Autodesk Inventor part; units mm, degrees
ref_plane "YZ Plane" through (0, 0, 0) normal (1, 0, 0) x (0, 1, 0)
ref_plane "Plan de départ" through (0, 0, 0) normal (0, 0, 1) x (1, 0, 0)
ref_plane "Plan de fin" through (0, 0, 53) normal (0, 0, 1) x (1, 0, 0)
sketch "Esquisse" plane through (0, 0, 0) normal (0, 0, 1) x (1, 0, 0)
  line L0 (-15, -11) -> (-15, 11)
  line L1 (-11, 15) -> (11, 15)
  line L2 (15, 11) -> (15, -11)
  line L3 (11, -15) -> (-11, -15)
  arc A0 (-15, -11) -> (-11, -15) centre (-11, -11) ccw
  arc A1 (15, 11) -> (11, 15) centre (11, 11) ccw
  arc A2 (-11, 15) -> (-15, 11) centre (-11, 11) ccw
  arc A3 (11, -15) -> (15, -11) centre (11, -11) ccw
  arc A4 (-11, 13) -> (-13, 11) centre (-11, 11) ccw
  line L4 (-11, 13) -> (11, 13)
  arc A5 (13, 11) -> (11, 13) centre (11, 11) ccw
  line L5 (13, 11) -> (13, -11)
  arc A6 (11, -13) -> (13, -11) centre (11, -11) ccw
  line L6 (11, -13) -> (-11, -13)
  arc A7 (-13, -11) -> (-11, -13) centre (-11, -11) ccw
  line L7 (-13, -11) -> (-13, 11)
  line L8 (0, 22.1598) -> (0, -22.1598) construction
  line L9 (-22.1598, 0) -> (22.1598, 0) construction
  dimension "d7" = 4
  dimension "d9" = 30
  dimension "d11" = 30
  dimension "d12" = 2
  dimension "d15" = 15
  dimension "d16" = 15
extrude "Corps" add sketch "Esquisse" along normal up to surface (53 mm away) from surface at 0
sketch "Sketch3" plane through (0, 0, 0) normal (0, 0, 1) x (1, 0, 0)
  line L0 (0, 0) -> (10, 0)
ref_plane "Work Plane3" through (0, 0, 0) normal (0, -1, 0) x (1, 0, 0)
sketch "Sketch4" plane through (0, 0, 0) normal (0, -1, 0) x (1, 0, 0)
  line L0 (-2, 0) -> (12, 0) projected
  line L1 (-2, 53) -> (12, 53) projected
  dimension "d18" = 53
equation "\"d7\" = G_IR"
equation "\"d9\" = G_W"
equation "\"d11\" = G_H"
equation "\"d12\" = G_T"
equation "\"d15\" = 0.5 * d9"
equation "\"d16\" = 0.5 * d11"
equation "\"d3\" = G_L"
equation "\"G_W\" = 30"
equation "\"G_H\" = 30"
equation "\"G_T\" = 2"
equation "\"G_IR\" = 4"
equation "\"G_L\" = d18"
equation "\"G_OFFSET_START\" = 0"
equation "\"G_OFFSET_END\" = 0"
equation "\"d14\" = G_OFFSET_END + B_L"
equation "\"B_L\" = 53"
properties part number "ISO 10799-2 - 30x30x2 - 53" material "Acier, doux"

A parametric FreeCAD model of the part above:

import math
import FreeCAD as App
import Part
import Sketcher

doc = App.newDocument("Part")
params = doc.addObject("Spreadsheet::Sheet", "Params")
for row, (alias, value) in enumerate([
    ("sketch1_radius", "4 mm"),
    ("sketch1_radius2", "2 mm"),
    ("pad1_length", "53 mm"),
], start=1):
    params.set(f"A{row}", alias)
    params.set(f"B{row}", "=" + value)
    params.setAlias(f"B{row}", alias)

body = doc.addObject("PartDesign::Body", "Body")

# Sketch on XY plane
sketch1 = doc.addObject("Sketcher::SketchObject", "Sketch")
body.addObject(sketch1)
sketch1.AttachmentSupport = (doc.XY_Plane, [""])
sketch1.MapMode = "FlatFace"
sketch1.addGeometry([
    Part.LineSegment(App.Vector(-15, 11, 0), App.Vector(-15, -11, 0)),  # 0
    Part.ArcOfCircle(Part.Circle(App.Vector(-11, -11, 0), App.Vector(0, 0, 1), 4), math.radians(180), math.radians(270)),  # 1
    Part.LineSegment(App.Vector(-11, -15, 0), App.Vector(11, -15, 0)),  # 2
    Part.ArcOfCircle(Part.Circle(App.Vector(11, -11, 0), App.Vector(0, 0, 1), 4), math.radians(-90), math.radians(0)),  # 3
    Part.LineSegment(App.Vector(15, -11, 0), App.Vector(15, 11, 0)),  # 4
    Part.ArcOfCircle(Part.Circle(App.Vector(11, 11, 0), App.Vector(0, 0, 1), 4), math.radians(0), math.radians(90)),  # 5
    Part.LineSegment(App.Vector(11, 15, 0), App.Vector(-11, 15, 0)),  # 6
    Part.ArcOfCircle(Part.Circle(App.Vector(-11, 11, 0), App.Vector(0, 0, 1), 4), math.radians(90), math.radians(180)),  # 7
    Part.ArcOfCircle(Part.Circle(App.Vector(-11, 11, 0), App.Vector(0, 0, 1), 2), math.radians(90), math.radians(180)),  # 8
    Part.LineSegment(App.Vector(-11, 13, 0), App.Vector(11, 13, 0)),  # 9
    Part.ArcOfCircle(Part.Circle(App.Vector(11, 11, 0), App.Vector(0, 0, 1), 2), math.radians(0), math.radians(90)),  # 10
    Part.LineSegment(App.Vector(13, 11, 0), App.Vector(13, -11, 0)),  # 11
    Part.ArcOfCircle(Part.Circle(App.Vector(11, -11, 0), App.Vector(0, 0, 1), 2), math.radians(-90), math.radians(0)),  # 12
    Part.LineSegment(App.Vector(11, -13, 0), App.Vector(-11, -13, 0)),  # 13
    Part.ArcOfCircle(Part.Circle(App.Vector(-11, -11, 0), App.Vector(0, 0, 1), 2), math.radians(180), math.radians(270)),  # 14
    Part.LineSegment(App.Vector(-13, -11, 0), App.Vector(-13, 11, 0)),  # 15
], False)
sketch1.addConstraint([
    Sketcher.Constraint("Tangent", 0, 2, 1, 1),
    Sketcher.Constraint("Tangent", 1, 2, 2, 1),
    Sketcher.Constraint("Tangent", 2, 2, 3, 1),
    Sketcher.Constraint("Tangent", 3, 2, 4, 1),
    Sketcher.Constraint("Tangent", 4, 2, 5, 1),
    Sketcher.Constraint("Tangent", 5, 2, 6, 1),
    Sketcher.Constraint("Tangent", 6, 2, 7, 1),
    Sketcher.Constraint("Tangent", 7, 2, 0, 1),
    Sketcher.Constraint("Tangent", 8, 1, 9, 1),
    Sketcher.Constraint("Tangent", 9, 2, 10, 2),
    Sketcher.Constraint("Tangent", 10, 1, 11, 1),
    Sketcher.Constraint("Tangent", 11, 2, 12, 2),
    Sketcher.Constraint("Tangent", 12, 1, 13, 1),
    Sketcher.Constraint("Tangent", 13, 2, 14, 2),
    Sketcher.Constraint("Tangent", 14, 1, 15, 1),
    Sketcher.Constraint("Tangent", 15, 2, 8, 2),
    Sketcher.Constraint("Vertical", 0),
    Sketcher.Constraint("Horizontal", 2),
    Sketcher.Constraint("Vertical", 4),
    Sketcher.Constraint("Horizontal", 6),
    Sketcher.Constraint("Horizontal", 9),
    Sketcher.Constraint("Vertical", 11),
    Sketcher.Constraint("Horizontal", 13),
    Sketcher.Constraint("Vertical", 15),
    Sketcher.Constraint("Coincident", 8, 3, 7, 3),
    Sketcher.Constraint("Coincident", 10, 3, 5, 3),
    Sketcher.Constraint("Coincident", 12, 3, 3, 3),
    Sketcher.Constraint("Equal", 1, 3),
    Sketcher.Constraint("Equal", 3, 5),
    Sketcher.Constraint("Equal", 5, 7),
    Sketcher.Constraint("Equal", 12, 14),
    Sketcher.Constraint("Symmetric", 1, 3, 5, 3, -1, 1),
    Sketcher.Constraint("Equal", 13, 0),
    Sketcher.Constraint("Radius", 1, 4.0),
    Sketcher.Constraint("Radius", 8, 2.0),
    Sketcher.Constraint("DistanceX", 0, 2, -1, 1, 15.0),
])
sketch1.setExpression("Constraints[33]", "Params.sketch1_radius")
sketch1.setExpression("Constraints[34]", "Params.sketch1_radius2")
pad1 = doc.addObject("PartDesign::Pad", "Pad")
body.addObject(pad1)
pad1.Profile = sketch1
pad1.setExpression("Length", "Params.pad1_length")

doc.recompute()
